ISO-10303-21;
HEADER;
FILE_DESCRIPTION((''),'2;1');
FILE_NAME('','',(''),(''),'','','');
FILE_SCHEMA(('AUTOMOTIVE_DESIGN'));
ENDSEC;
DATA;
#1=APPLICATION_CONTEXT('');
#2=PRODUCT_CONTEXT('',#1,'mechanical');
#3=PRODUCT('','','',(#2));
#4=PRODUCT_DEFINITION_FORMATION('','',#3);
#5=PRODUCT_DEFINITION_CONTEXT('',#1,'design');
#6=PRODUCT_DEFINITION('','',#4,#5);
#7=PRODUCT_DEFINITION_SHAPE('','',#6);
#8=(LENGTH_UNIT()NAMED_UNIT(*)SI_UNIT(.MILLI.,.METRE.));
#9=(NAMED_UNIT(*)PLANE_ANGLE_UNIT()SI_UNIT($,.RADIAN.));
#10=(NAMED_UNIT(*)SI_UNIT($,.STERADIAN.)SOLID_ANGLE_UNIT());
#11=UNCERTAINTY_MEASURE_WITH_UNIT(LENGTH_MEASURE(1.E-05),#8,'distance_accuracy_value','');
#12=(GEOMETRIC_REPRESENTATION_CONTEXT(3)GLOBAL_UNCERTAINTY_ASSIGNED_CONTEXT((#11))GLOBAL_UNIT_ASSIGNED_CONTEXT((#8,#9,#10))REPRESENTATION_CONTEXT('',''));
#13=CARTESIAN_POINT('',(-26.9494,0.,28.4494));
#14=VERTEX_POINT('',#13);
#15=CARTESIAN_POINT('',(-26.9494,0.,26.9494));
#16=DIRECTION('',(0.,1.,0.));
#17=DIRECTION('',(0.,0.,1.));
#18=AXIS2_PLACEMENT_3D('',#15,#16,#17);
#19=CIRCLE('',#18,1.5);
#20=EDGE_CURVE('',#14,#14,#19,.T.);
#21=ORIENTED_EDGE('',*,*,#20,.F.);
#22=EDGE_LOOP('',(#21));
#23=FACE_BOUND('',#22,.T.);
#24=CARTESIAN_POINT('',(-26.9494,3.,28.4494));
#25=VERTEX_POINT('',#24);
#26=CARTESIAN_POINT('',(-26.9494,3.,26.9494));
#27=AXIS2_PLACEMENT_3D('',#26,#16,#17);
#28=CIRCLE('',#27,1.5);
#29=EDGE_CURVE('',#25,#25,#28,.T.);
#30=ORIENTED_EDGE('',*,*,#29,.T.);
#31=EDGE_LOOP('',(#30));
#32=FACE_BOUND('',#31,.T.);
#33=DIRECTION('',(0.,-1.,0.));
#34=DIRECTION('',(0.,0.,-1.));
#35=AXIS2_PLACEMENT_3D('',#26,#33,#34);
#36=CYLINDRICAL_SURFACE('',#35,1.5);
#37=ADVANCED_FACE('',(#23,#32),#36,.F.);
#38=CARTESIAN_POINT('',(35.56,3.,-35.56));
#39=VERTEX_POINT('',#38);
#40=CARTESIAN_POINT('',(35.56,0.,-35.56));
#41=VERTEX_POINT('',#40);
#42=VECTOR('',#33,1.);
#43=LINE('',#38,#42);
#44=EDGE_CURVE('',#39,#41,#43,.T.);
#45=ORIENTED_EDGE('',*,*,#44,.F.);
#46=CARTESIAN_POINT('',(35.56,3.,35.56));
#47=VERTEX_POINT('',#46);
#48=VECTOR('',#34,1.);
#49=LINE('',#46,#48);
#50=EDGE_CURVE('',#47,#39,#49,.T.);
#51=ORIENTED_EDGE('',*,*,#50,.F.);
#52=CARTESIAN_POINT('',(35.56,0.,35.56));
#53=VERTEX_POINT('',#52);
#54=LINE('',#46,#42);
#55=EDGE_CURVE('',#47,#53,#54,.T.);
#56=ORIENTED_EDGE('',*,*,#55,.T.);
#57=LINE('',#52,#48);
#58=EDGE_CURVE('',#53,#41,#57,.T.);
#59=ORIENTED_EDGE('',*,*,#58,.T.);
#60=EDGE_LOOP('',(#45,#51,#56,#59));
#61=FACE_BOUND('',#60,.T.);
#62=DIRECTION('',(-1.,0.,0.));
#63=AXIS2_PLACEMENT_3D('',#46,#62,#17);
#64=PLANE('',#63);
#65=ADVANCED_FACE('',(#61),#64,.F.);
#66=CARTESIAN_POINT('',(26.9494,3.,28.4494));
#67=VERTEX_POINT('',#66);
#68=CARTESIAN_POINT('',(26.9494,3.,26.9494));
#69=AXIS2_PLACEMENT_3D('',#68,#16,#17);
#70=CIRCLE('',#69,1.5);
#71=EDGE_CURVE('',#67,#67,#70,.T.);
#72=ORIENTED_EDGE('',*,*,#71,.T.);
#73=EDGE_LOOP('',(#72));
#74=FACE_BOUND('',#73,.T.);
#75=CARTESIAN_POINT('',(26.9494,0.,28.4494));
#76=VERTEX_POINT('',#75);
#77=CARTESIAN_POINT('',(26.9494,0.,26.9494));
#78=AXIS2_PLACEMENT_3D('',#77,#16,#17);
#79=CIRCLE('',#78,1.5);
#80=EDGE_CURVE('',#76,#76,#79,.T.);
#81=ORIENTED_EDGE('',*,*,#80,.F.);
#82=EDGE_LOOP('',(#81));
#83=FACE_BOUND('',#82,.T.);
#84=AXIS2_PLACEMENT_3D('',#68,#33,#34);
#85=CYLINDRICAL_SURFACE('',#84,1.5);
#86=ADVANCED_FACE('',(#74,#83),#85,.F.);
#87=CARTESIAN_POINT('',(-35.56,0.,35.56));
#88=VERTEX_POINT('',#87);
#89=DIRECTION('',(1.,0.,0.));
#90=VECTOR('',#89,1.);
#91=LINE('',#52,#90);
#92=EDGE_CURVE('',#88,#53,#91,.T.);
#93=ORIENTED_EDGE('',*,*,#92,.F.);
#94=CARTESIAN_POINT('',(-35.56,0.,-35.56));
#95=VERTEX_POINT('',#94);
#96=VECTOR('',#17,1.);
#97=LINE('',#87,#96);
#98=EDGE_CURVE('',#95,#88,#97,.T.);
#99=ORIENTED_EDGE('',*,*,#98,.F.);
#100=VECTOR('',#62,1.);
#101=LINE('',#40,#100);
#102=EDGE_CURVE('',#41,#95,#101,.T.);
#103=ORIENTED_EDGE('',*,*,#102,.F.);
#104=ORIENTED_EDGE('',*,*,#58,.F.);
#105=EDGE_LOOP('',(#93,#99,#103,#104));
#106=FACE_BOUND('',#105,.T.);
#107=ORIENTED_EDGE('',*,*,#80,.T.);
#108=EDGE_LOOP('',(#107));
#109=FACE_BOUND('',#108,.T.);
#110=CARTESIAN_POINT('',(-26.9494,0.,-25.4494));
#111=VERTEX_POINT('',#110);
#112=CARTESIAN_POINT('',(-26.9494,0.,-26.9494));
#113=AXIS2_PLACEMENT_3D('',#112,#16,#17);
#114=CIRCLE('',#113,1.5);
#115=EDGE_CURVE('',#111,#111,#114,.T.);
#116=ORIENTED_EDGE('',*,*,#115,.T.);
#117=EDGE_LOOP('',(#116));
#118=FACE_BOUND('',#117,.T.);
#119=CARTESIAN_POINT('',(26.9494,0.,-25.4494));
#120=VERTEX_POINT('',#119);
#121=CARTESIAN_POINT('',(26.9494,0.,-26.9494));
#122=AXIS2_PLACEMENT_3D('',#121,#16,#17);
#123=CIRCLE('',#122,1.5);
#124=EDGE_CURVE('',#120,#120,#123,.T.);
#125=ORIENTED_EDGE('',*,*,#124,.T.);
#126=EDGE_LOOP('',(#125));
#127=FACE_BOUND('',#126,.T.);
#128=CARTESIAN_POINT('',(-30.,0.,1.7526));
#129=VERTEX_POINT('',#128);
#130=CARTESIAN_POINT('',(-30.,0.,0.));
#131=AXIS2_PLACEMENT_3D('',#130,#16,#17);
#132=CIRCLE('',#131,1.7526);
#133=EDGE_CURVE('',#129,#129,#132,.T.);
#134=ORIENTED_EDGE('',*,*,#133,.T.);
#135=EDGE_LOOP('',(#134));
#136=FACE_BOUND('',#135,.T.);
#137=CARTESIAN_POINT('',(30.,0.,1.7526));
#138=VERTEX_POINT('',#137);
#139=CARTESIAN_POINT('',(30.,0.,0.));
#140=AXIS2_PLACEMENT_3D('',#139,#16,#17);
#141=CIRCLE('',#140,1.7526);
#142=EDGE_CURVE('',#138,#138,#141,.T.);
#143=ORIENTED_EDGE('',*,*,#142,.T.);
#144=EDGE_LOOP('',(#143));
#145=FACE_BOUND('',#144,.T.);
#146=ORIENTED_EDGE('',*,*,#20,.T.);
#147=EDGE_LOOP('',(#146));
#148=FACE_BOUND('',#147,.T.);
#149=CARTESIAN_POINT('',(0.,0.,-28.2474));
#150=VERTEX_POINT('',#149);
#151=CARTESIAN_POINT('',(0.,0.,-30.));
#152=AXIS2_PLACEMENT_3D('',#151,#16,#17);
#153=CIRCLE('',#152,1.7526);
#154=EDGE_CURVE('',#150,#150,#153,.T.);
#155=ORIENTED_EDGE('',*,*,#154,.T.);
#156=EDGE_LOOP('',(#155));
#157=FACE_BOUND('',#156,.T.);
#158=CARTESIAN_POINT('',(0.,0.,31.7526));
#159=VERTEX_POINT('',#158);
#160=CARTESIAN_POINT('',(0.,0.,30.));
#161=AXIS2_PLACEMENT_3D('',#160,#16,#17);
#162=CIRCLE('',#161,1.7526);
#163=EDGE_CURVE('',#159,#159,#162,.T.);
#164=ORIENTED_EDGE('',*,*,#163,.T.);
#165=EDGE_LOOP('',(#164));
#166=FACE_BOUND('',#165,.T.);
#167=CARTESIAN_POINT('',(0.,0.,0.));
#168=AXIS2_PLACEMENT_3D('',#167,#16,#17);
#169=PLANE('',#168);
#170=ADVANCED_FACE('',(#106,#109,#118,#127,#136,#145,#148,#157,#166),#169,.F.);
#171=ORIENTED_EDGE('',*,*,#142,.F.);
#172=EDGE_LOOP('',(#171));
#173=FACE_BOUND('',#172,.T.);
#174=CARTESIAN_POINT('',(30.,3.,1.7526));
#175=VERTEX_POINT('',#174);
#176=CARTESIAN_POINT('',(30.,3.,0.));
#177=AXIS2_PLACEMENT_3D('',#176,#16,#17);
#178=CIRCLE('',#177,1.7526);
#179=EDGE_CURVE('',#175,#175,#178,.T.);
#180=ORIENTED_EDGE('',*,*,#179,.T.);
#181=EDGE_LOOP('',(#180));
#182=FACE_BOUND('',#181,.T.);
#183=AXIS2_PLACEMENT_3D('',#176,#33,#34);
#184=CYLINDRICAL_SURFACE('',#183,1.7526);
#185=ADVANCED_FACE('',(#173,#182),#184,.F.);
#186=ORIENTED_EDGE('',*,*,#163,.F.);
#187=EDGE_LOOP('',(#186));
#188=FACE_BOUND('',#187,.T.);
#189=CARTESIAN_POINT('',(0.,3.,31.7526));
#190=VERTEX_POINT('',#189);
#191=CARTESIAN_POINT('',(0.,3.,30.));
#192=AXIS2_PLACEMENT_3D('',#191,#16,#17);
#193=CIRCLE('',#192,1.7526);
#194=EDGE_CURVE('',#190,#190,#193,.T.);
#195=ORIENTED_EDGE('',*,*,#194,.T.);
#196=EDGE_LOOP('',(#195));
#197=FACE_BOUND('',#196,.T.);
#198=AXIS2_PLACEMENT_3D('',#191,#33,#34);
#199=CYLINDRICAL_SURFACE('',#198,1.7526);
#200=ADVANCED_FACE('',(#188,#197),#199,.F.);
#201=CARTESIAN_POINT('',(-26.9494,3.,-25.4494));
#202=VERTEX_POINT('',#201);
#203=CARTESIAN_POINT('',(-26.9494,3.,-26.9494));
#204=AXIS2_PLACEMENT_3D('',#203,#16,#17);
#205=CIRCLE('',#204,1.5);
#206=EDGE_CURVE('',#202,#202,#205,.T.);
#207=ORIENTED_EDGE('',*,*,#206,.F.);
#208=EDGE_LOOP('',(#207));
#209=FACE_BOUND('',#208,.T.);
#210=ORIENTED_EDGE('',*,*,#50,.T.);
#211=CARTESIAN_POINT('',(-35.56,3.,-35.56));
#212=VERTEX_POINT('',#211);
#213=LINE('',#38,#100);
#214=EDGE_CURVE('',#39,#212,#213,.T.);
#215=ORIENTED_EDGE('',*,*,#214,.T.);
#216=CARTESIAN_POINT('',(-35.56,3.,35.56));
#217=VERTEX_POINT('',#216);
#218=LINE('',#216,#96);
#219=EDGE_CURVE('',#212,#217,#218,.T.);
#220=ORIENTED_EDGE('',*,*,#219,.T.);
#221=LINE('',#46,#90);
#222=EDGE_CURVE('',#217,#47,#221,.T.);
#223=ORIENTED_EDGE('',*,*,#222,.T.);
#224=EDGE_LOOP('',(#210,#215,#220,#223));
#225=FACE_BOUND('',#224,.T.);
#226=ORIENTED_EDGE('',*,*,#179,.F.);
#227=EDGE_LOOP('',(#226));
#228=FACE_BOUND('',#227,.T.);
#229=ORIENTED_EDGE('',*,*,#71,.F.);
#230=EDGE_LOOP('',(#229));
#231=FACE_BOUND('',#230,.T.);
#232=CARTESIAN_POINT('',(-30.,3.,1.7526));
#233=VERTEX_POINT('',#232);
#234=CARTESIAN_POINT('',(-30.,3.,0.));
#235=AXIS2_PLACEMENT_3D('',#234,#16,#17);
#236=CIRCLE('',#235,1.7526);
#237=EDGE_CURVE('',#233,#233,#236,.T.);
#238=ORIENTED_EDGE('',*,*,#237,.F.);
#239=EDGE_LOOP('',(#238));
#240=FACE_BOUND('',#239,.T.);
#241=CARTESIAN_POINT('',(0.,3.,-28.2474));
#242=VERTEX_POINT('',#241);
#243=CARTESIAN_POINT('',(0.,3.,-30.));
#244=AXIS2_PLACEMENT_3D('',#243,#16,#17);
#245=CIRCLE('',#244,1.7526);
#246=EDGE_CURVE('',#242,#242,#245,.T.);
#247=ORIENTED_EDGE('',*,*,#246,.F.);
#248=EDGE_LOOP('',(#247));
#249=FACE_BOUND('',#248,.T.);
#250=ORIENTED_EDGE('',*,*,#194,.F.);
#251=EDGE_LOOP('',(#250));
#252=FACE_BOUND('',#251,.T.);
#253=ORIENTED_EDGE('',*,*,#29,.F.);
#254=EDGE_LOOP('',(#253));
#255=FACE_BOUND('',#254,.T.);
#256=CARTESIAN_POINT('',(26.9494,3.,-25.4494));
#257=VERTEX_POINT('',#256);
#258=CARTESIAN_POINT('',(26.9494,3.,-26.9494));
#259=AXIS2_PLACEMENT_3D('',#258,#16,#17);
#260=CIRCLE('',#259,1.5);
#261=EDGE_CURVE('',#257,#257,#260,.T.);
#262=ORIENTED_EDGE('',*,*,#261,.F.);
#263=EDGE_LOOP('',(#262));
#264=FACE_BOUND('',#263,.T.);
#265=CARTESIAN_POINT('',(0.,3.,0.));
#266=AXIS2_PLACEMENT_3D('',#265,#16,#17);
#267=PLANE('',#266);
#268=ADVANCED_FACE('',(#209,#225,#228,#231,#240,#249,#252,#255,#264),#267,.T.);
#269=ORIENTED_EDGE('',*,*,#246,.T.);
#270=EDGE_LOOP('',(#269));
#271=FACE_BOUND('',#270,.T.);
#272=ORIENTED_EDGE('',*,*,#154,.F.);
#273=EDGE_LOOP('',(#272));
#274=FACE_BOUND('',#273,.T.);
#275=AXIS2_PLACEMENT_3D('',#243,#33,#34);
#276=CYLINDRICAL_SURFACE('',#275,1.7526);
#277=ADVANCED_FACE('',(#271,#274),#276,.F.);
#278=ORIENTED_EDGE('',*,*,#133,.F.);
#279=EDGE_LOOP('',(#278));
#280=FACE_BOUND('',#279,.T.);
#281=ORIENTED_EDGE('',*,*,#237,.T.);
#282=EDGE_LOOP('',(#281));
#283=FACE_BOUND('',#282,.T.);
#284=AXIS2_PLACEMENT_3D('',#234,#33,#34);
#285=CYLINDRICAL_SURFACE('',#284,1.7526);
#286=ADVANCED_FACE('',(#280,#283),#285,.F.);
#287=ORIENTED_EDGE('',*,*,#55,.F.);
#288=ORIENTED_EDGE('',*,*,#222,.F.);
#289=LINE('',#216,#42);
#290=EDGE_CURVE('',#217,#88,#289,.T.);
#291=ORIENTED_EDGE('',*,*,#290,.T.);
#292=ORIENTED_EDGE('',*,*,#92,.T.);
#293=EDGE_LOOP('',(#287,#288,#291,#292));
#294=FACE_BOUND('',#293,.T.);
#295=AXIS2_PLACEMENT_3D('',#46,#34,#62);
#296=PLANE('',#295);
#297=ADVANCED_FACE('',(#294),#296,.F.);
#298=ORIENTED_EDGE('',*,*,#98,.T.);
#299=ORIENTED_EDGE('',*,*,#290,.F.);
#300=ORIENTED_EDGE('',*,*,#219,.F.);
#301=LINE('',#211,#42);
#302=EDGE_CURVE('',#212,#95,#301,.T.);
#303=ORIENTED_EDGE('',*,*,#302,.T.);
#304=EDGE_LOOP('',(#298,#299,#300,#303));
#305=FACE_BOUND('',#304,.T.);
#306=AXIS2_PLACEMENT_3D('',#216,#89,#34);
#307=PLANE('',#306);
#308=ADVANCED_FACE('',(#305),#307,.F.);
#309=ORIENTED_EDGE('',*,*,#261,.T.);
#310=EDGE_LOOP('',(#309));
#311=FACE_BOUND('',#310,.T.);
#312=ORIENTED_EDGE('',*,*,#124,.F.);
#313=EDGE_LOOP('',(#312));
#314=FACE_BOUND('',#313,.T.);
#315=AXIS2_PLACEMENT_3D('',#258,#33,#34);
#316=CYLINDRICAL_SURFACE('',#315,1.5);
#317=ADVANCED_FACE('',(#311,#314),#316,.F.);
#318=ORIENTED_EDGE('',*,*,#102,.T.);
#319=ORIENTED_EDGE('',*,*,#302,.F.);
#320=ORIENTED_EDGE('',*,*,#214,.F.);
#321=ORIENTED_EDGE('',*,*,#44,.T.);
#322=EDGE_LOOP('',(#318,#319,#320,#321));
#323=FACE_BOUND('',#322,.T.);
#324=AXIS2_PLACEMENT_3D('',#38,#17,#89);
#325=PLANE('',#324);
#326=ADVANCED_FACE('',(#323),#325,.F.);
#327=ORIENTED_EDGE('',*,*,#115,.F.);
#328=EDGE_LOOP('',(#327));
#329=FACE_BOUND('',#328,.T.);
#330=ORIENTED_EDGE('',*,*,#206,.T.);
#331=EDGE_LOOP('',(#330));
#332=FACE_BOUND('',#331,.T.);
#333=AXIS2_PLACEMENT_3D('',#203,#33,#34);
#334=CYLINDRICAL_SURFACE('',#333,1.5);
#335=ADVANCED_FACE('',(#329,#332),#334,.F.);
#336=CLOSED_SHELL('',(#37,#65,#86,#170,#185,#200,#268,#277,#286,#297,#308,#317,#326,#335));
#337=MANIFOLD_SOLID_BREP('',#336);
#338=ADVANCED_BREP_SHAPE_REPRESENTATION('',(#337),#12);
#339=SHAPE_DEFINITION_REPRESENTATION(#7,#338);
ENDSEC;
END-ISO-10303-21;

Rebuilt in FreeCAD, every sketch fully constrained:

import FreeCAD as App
import Part
import Sketcher

V = App.Vector
Q = App.Units.Quantity

doc = App.newDocument("Part")
body = doc.addObject("PartDesign::Body", "Body")

# Sketch on XZ plane
sketch1 = body.newObject("Sketcher::SketchObject", "Sketch")
sketch1.AttachmentSupport = (doc.getObject("XZ_Plane"), [""])
sketch1.MapMode = "FlatFace"
sketch1.addGeometry(Part.LineSegment(V(-35.6, -35.6, 0), V(-35.6, 35.6, 0)), False)
sketch1.addGeometry(Part.LineSegment(V(-35.6, 35.6, 0), V(35.6, 35.6, 0)), False)
sketch1.addGeometry(Part.LineSegment(V(35.6, 35.6, 0), V(35.6, -35.6, 0)), False)
sketch1.addGeometry(Part.LineSegment(V(35.6, -35.6, 0), V(-35.6, -35.6, 0)), False)
sketch1.addGeometry(Part.Circle(V(-26.9, 26.9, 0), V(0, 0, 1), 1.5), False)
sketch1.addGeometry(Part.Circle(V(0, 30, 0), V(0, 0, 1), 1.8), False)
sketch1.addGeometry(Part.Circle(V(26.9, 26.9, 0), V(0, 0, 1), 1.5), False)
sketch1.addGeometry(Part.Circle(V(-30, 0, 0), V(0, 0, 1), 1.8), False)
sketch1.addGeometry(Part.Circle(V(-26.9, -26.9, 0), V(0, 0, 1), 1.5), False)
sketch1.addGeometry(Part.Circle(V(30, 0, 0), V(0, 0, 1), 1.8), False)
sketch1.addGeometry(Part.Circle(V(0, -30, 0), V(0, 0, 1), 1.8), False)
sketch1.addGeometry(Part.Circle(V(26.9, -26.9, 0), V(0, 0, 1), 1.5), False)
sketch1.addConstraint(Sketcher.Constraint("Coincident", 0, 2, 1, 1))
sketch1.addConstraint(Sketcher.Constraint("Coincident", 1, 2, 2, 1))
sketch1.addConstraint(Sketcher.Constraint("Coincident", 2, 2, 3, 1))
sketch1.addConstraint(Sketcher.Constraint("Coincident", 3, 2, 0, 1))
sketch1.addConstraint(Sketcher.Constraint("Vertical", 0))
sketch1.addConstraint(Sketcher.Constraint("Horizontal", 1))
sketch1.addConstraint(Sketcher.Constraint("Vertical", 2))
sketch1.addConstraint(Sketcher.Constraint("Horizontal", 3))
sketch1.addConstraint(Sketcher.Constraint("Equal", 4, 6))
sketch1.addConstraint(Sketcher.Constraint("Equal", 5, 7))
sketch1.addConstraint(Sketcher.Constraint("Equal", 6, 8))
sketch1.addConstraint(Sketcher.Constraint("Equal", 7, 9))
sketch1.addConstraint(Sketcher.Constraint("Equal", 9, 10))
sketch1.addConstraint(Sketcher.Constraint("Equal", 8, 11))
sketch1.addConstraint(Sketcher.Constraint("Symmetric", 6, 3, 8, 3, -1, 1))
sketch1.addConstraint(Sketcher.Constraint("Symmetric", 7, 3, 9, 3, -1, 1))
sketch1.addConstraint(Sketcher.Constraint("Symmetric", 5, 3, 10, 3, -1, 1))
sketch1.addConstraint(Sketcher.Constraint("Symmetric", 4, 3, 11, 3, -1, 1))
sketch1.addConstraint(Sketcher.Constraint("Symmetric", 0, 2, 2, 2, -1, 1))
sketch1.addConstraint(Sketcher.Constraint("Symmetric", 4, 3, 6, 3, -2))
sketch1.addConstraint(Sketcher.Constraint("PointOnObject", 5, 3, -2))
sketch1.addConstraint(Sketcher.Constraint("PointOnObject", 7, 3, -1))
sketch1.addConstraint(Sketcher.Constraint("Equal", 3, 0))
sketch1.addConstraint(Sketcher.Constraint("Diameter", 5, Q("0.138 in")))
sketch1.addConstraint(Sketcher.Constraint("DistanceX", 1, 1, 1, 2, Q("2.8 in")))
sketch1.addConstraint(Sketcher.Constraint("Diameter", 4, 3.0))
sketch1.addConstraint(Sketcher.Constraint("DistanceX", 4, 3, -1, 1, Q("1.061 in")))
sketch1.addConstraint(Sketcher.Constraint("DistanceY", -1, 1, 4, 3, Q("1.061 in")))
sketch1.addConstraint(Sketcher.Constraint("DistanceY", -1, 1, 5, 3, 30.0))
sketch1.addConstraint(Sketcher.Constraint("DistanceX", 7, 3, -1, 1, 30.0))
pad1 = body.newObject("PartDesign::Pad", "Pad")
pad1.Profile = sketch1
pad1.Length = 3
pad1.Reversed = True

doc.recompute()
